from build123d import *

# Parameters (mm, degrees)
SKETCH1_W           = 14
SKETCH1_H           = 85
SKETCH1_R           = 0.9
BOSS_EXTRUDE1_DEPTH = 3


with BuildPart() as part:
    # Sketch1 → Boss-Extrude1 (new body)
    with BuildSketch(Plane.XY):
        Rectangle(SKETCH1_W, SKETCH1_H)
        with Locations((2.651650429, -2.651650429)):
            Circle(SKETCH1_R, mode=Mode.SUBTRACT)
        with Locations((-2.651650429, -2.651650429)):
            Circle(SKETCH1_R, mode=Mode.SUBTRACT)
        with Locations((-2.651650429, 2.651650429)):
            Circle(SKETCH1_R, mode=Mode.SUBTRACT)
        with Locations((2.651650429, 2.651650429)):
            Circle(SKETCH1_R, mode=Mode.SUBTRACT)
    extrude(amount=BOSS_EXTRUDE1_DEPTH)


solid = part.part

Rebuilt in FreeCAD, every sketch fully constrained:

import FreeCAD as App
import Part
import Sketcher


def add_polygon(sketch, points):
    """Adds a closed chain of lines whose ends are joined by coincident constraints."""
    first, n = sketch.GeometryCount, len(points)
    for a, b in zip(points, points[1:] + points[:1]):
        sketch.addGeometry(Part.LineSegment(App.Vector(*a, 0), App.Vector(*b, 0)), False)
    for i in range(n):
        sketch.addConstraint(Sketcher.Constraint("Coincident", first + i, 2, first + (i + 1) % n, 1))

doc = App.newDocument("Part")
body = doc.addObject("PartDesign::Body", "Body")

sketch1 = body.newObject("Sketcher::SketchObject", "Sketch")
sketch1.AttachmentSupport = (doc.getObject("XY_Plane"), [""])
sketch1.MapMode = "FlatFace"
add_polygon(sketch1, [(-7, 42.5), (-7, -42.5), (7, -42.5), (7, 42.5)])
sketch1.addGeometry(Part.Circle(App.Vector(-2.7, -2.7, 0), App.Vector(0, 0, 1), 0.9), False)
sketch1.addGeometry(Part.Circle(App.Vector(2.7, -2.7, 0), App.Vector(0, 0, 1), 0.9), False)
sketch1.addGeometry(Part.Circle(App.Vector(-2.7, 2.7, 0), App.Vector(0, 0, 1), 0.9), False)
sketch1.addGeometry(Part.Circle(App.Vector(2.7, 2.7, 0), App.Vector(0, 0, 1), 0.9), False)
sketch1.addConstraint([
    Sketcher.Constraint("Vertical", 0),
    Sketcher.Constraint("Horizontal", 1),
    Sketcher.Constraint("Vertical", 2),
    Sketcher.Constraint("Horizontal", 3),
    Sketcher.Constraint("Equal", 4, 5),
    Sketcher.Constraint("Equal", 5, 6),
    Sketcher.Constraint("Equal", 6, 7),
    Sketcher.Constraint("Symmetric", 5, 3, 6, 3, -1, 1),
    Sketcher.Constraint("Symmetric", 4, 3, 7, 3, -1, 1),
    Sketcher.Constraint("Symmetric", 0, 2, 2, 2, -1, 1),
    Sketcher.Constraint("Symmetric", 4, 3, 5, 3, -2),
    Sketcher.Constraint("Diameter", 4, 1.8),
    Sketcher.Constraint("DistanceX", 1, 1, 1, 2, 14.0),
    Sketcher.Constraint("DistanceY", 0, 2, 0, 1, 85.0),
    Sketcher.Constraint("DistanceX", 4, 3, 5, 3, 5.303301),
    Sketcher.Constraint("DistanceY", 4, 3, 6, 3, 5.303301),
])
pad1 = body.newObject("PartDesign::Pad", "Pad")
pad1.Profile = sketch1
pad1.Length = 3

doc.recompute()
